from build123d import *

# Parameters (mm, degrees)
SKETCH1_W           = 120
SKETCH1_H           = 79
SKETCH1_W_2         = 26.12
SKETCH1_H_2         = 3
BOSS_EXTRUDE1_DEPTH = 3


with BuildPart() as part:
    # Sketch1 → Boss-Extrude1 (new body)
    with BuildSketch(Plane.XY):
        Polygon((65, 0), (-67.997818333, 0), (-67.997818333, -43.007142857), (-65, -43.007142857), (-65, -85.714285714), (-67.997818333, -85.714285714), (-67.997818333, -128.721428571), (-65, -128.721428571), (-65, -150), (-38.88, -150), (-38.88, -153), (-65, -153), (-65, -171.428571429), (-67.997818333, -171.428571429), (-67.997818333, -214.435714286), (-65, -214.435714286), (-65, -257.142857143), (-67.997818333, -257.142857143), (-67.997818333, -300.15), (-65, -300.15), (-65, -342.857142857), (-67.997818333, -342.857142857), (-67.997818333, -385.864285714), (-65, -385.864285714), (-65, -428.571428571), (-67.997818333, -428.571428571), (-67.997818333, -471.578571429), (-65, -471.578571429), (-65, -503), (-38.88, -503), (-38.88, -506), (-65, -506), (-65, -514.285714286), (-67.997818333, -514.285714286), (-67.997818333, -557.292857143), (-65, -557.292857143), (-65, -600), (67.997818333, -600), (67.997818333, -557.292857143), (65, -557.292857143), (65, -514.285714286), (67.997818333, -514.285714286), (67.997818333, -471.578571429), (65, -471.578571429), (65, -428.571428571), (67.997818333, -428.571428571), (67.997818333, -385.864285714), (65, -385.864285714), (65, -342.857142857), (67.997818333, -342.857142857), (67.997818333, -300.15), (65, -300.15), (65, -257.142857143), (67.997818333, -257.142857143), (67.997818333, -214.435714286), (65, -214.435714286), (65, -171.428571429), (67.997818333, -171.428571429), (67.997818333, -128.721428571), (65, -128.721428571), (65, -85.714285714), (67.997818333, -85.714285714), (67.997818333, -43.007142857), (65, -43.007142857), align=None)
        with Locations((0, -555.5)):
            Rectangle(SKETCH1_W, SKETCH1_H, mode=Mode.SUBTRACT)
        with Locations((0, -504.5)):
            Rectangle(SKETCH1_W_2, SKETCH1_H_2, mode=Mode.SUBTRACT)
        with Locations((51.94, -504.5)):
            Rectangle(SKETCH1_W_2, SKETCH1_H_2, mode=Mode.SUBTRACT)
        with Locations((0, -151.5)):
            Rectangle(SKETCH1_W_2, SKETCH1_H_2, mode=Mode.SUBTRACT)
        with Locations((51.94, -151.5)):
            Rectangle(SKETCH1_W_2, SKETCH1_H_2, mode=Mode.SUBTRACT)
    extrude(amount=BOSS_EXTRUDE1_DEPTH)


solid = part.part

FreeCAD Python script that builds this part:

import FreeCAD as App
import Part
import Sketcher


def add_polygon(sketch, points):
    """Adds a closed chain of lines whose ends are joined by coincident constraints."""
    first, n = sketch.GeometryCount, len(points)
    for a, b in zip(points, points[1:] + points[:1]):
        sketch.addGeometry(Part.LineSegment(App.Vector(*a, 0), App.Vector(*b, 0)), False)
    for i in range(n):
        sketch.addConstraint(Sketcher.Constraint("Coincident", first + i, 2, first + (i + 1) % n, 1))

doc = App.newDocument("Part")
body = doc.addObject("PartDesign::Body", "Body")

sketch1 = body.newObject("Sketcher::SketchObject", "Sketch")
sketch1.AttachmentSupport = (doc.getObject("XY_Plane"), [""])
sketch1.MapMode = "FlatFace"
add_polygon(sketch1, [(65, 0), (-68, 0), (-68, -43), (-65, -43), (-65, -85.7), (-68, -85.7), (-68, -128.7), (-65, -128.7), (-65, -150), (-38.9, -150), (-38.9, -153), (-65, -153), (-65, -171.4), (-68, -171.4), (-68, -214.4), (-65, -214.4), (-65, -257.1), (-68, -257.1), (-68, -300.1), (-65, -300.1), (-65, -342.9), (-68, -342.9), (-68, -385.9), (-65, -385.9), (-65, -428.6), (-68, -428.6), (-68, -471.6), (-65, -471.6), (-65, -503), (-38.9, -503), (-38.9, -506), (-65, -506), (-65, -514.3), (-68, -514.3), (-68, -557.3), (-65, -557.3), (-65, -600), (68, -600), (68, -557.3), (65, -557.3), (65, -514.3), (68, -514.3), (68, -471.6), (65, -471.6), (65, -428.6), (68, -428.6), (68, -385.9), (65, -385.9), (65, -342.9), (68, -342.9), (68, -300.1), (65, -300.1), (65, -257.1), (68, -257.1), (68, -214.4), (65, -214.4), (65, -171.4), (68, -171.4), (68, -128.7), (65, -128.7), (65, -85.7), (68, -85.7), (68, -43), (65, -43)])
add_polygon(sketch1, [(60, -595), (-60, -595), (-60, -516), (60, -516)])
add_polygon(sketch1, [(13.1, -506), (-13.1, -506), (-13.1, -503), (13.1, -503)])
add_polygon(sketch1, [(65, -506), (38.9, -506), (38.9, -503), (65, -503)])
add_polygon(sketch1, [(13.1, -153), (-13.1, -153), (-13.1, -150), (13.1, -150)])
add_polygon(sketch1, [(65, -153), (38.9, -153), (38.9, -150), (65, -150)])
sketch1.addConstraint([
    Sketcher.Constraint("Horizontal", 0),
    Sketcher.Constraint("Vertical", 1),
    Sketcher.Constraint("Horizontal", 2),
    Sketcher.Constraint("Vertical", 3),
    Sketcher.Constraint("Horizontal", 4),
    Sketcher.Constraint("Vertical", 5),
    Sketcher.Constraint("Horizontal", 6),
    Sketcher.Constraint("Vertical", 7),
    Sketcher.Constraint("Horizontal", 8),
    Sketcher.Constraint("Vertical", 9),
    Sketcher.Constraint("Horizontal", 10),
    Sketcher.Constraint("Vertical", 11),
    Sketcher.Constraint("Horizontal", 12),
    Sketcher.Constraint("Vertical", 13),
    Sketcher.Constraint("Horizontal", 14),
    Sketcher.Constraint("Vertical", 15),
    Sketcher.Constraint("Horizontal", 16),
    Sketcher.Constraint("Vertical", 17),
    Sketcher.Constraint("Horizontal", 18),
    Sketcher.Constraint("Vertical", 19),
    Sketcher.Constraint("Horizontal", 20),
    Sketcher.Constraint("Vertical", 21),
    Sketcher.Constraint("Horizontal", 22),
    Sketcher.Constraint("Vertical", 23),
    Sketcher.Constraint("Horizontal", 24),
    Sketcher.Constraint("Vertical", 25),
    Sketcher.Constraint("Horizontal", 26),
    Sketcher.Constraint("Vertical", 27),
    Sketcher.Constraint("Horizontal", 28),
    Sketcher.Constraint("Vertical", 29),
    Sketcher.Constraint("Horizontal", 30),
    Sketcher.Constraint("Vertical", 31),
    Sketcher.Constraint("Horizontal", 32),
    Sketcher.Constraint("Vertical", 33),
    Sketcher.Constraint("Horizontal", 34),
    Sketcher.Constraint("Vertical", 35),
    Sketcher.Constraint("Horizontal", 36),
    Sketcher.Constraint("Vertical", 37),
    Sketcher.Constraint("Horizontal", 38),
    Sketcher.Constraint("Vertical", 39),
    Sketcher.Constraint("Horizontal", 40),
    Sketcher.Constraint("Vertical", 41),
    Sketcher.Constraint("Horizontal", 42),
    Sketcher.Constraint("Vertical", 43),
    Sketcher.Constraint("Horizontal", 44),
    Sketcher.Constraint("Vertical", 45),
    Sketcher.Constraint("Horizontal", 46),
    Sketcher.Constraint("Vertical", 47),
    Sketcher.Constraint("Horizontal", 48),
    Sketcher.Constraint("Vertical", 49),
    Sketcher.Constraint("Horizontal", 50),
    Sketcher.Constraint("Vertical", 51),
    Sketcher.Constraint("Horizontal", 52),
    Sketcher.Constraint("Vertical", 53),
    Sketcher.Constraint("Horizontal", 54),
    Sketcher.Constraint("Vertical", 55),
    Sketcher.Constraint("Horizontal", 56),
    Sketcher.Constraint("Vertical", 57),
    Sketcher.Constraint("Horizontal", 58),
    Sketcher.Constraint("Vertical", 59),
    Sketcher.Constraint("Horizontal", 60),
    Sketcher.Constraint("Vertical", 61),
    Sketcher.Constraint("Horizontal", 62),
    Sketcher.Constraint("Vertical", 63),
    Sketcher.Constraint("Horizontal", 64),
    Sketcher.Constraint("Vertical", 65),
    Sketcher.Constraint("Horizontal", 66),
    Sketcher.Constraint("Vertical", 67),
    Sketcher.Constraint("Horizontal", 68),
    Sketcher.Constraint("Vertical", 69),
    Sketcher.Constraint("Horizontal", 70),
    Sketcher.Constraint("Vertical", 71),
    Sketcher.Constraint("Horizontal", 72),
    Sketcher.Constraint("Vertical", 73),
    Sketcher.Constraint("Horizontal", 74),
    Sketcher.Constraint("Vertical", 75),
    Sketcher.Constraint("Horizontal", 76),
    Sketcher.Constraint("Vertical", 77),
    Sketcher.Constraint("Horizontal", 78),
    Sketcher.Constraint("Vertical", 79),
    Sketcher.Constraint("Horizontal", 80),
    Sketcher.Constraint("Vertical", 81),
    Sketcher.Constraint("Horizontal", 82),
    Sketcher.Constraint("Vertical", 83),
    Sketcher.Constraint("Symmetric", 33, 2, 37, 2, -2),
    Sketcher.Constraint("Symmetric", 31, 2, 39, 2, -2),
    Sketcher.Constraint("Symmetric", 25, 2, 41, 2, -2),
    Sketcher.Constraint("Symmetric", 23, 2, 43, 2, -2),
    Sketcher.Constraint("Symmetric", 21, 2, 45, 2, -2),
    Sketcher.Constraint("Symmetric", 19, 2, 47, 2, -2),
    Sketcher.Constraint("Symmetric", 17, 2, 49, 2, -2),
    Sketcher.Constraint("Symmetric", 15, 2, 51, 2, -2),
    Sketcher.Constraint("Symmetric", 13, 2, 53, 2, -2),
    Sketcher.Constraint("Symmetric", 11, 2, 55, 2, -2),
    Sketcher.Constraint("Symmetric", 5, 2, 57, 2, -2),
    Sketcher.Constraint("Symmetric", 3, 2, 59, 2, -2),
    Sketcher.Constraint("Symmetric", 1, 2, 61, 2, -2),
    Sketcher.Constraint("Symmetric", 29, 2, 72, 2, -2),
    Sketcher.Constraint("Symmetric", 27, 2, 74, 2, -2),
    Sketcher.Constraint("Symmetric", 9, 2, 80, 2, -2),
    Sketcher.Constraint("Symmetric", 7, 2, 82, 2, -2),
    Sketcher.Constraint("PointOnObject", 0, 2, -1),
    Sketcher.Constraint("Horizontal", 30, 2, 68, 2),
    Sketcher.Constraint("Horizontal", 28, 2, 69, 2),
    Sketcher.Constraint("Horizontal", 10, 2, 76, 2),
    Sketcher.Constraint("Horizontal", 8, 2, 77, 2),
    Sketcher.Constraint("Vertical", 1, 2, 4, 2),
    Sketcher.Constraint("Vertical", 3, 2, 6, 2),
    Sketcher.Constraint("Vertical", 7, 2, 10, 2),
    Sketcher.Constraint("Vertical", 5, 2, 12, 2),
    Sketcher.Constraint("Vertical", 11, 2, 14, 2),
    Sketcher.Constraint("Vertical", 13, 2, 16, 2),
    Sketcher.Constraint("Vertical", 15, 2, 18, 2),
    Sketcher.Constraint("Vertical", 17, 2, 20, 2),
    Sketcher.Constraint("Vertical", 19, 2, 22, 2),
    Sketcher.Constraint("Vertical", 21, 2, 24, 2),
    Sketcher.Constraint("Vertical", 23, 2, 26, 2),
    Sketcher.Constraint("Vertical", 9, 2, 28, 2),
    Sketcher.Constraint("Vertical", 27, 2, 30, 2),
    Sketcher.Constraint("Vertical", 25, 2, 32, 2),
    Sketcher.Constraint("Vertical", 31, 2, 34, 2),
    Sketcher.Constraint("Vertical", 59, 2, 62, 2),
    Sketcher.Constraint("Vertical", 69, 2, 76, 2),
    Sketcher.Constraint("Vertical", 71, 2, 78, 2),
    Sketcher.Constraint("Equal", 30, 68),
    Sketcher.Constraint("Equal", 1, 5),
    Sketcher.Constraint("Equal", 5, 13),
    Sketcher.Constraint("Equal", 3, 15),
    Sketcher.Constraint("Equal", 13, 17),
    Sketcher.Constraint("Equal", 15, 19),
    Sketcher.Constraint("Equal", 17, 21),
    Sketcher.Constraint("Equal", 19, 23),
    Sketcher.Constraint("Equal", 21, 25),
    Sketcher.Constraint("Equal", 9, 29),
    Sketcher.Constraint("Equal", 25, 33),
    Sketcher.Constraint("Equal", 23, 35),
    Sketcher.Constraint("Equal", 37, 41),
    Sketcher.Constraint("Equal", 53, 57),
    Sketcher.Constraint("DistanceX", 64, 2, 64, 1, 120.0),
    Sketcher.Constraint("DistanceY", 9, 2, 9, 1, 3.0),
    Sketcher.Constraint("DistanceY", 65, 1, 65, 2, 79.0),
    Sketcher.Constraint("DistanceX", 2, 2, -1, 1, 65.0),
    Sketcher.Constraint("DistanceY", 7, 2, -1, 1, 150.0),
    Sketcher.Constraint("DistanceY", 27, 2, -1, 1, 503.0),
    Sketcher.Constraint("DistanceY", 35, 2, -1, 1, 600.0),
    Sketcher.Constraint("DistanceX", 64, 2, -1, 1, 60.0),
    Sketcher.Constraint("DistanceY", 64, 2, -1, 1, 595.0),
    Sketcher.Constraint("DistanceX", 8, 1, 8, 2, 26.12),
    Sketcher.Constraint("DistanceY", 17, 2, -1, 1, 300.15),
    Sketcher.Constraint("DistanceX", 68, 2, -1, 1, 13.06),
    Sketcher.Constraint("DistanceX", 0, 2, 0, 1, 132.997818),
])
pad1 = body.newObject("PartDesign::Pad", "Pad")
pad1.Profile = sketch1
pad1.Length = 3

doc.recompute()
